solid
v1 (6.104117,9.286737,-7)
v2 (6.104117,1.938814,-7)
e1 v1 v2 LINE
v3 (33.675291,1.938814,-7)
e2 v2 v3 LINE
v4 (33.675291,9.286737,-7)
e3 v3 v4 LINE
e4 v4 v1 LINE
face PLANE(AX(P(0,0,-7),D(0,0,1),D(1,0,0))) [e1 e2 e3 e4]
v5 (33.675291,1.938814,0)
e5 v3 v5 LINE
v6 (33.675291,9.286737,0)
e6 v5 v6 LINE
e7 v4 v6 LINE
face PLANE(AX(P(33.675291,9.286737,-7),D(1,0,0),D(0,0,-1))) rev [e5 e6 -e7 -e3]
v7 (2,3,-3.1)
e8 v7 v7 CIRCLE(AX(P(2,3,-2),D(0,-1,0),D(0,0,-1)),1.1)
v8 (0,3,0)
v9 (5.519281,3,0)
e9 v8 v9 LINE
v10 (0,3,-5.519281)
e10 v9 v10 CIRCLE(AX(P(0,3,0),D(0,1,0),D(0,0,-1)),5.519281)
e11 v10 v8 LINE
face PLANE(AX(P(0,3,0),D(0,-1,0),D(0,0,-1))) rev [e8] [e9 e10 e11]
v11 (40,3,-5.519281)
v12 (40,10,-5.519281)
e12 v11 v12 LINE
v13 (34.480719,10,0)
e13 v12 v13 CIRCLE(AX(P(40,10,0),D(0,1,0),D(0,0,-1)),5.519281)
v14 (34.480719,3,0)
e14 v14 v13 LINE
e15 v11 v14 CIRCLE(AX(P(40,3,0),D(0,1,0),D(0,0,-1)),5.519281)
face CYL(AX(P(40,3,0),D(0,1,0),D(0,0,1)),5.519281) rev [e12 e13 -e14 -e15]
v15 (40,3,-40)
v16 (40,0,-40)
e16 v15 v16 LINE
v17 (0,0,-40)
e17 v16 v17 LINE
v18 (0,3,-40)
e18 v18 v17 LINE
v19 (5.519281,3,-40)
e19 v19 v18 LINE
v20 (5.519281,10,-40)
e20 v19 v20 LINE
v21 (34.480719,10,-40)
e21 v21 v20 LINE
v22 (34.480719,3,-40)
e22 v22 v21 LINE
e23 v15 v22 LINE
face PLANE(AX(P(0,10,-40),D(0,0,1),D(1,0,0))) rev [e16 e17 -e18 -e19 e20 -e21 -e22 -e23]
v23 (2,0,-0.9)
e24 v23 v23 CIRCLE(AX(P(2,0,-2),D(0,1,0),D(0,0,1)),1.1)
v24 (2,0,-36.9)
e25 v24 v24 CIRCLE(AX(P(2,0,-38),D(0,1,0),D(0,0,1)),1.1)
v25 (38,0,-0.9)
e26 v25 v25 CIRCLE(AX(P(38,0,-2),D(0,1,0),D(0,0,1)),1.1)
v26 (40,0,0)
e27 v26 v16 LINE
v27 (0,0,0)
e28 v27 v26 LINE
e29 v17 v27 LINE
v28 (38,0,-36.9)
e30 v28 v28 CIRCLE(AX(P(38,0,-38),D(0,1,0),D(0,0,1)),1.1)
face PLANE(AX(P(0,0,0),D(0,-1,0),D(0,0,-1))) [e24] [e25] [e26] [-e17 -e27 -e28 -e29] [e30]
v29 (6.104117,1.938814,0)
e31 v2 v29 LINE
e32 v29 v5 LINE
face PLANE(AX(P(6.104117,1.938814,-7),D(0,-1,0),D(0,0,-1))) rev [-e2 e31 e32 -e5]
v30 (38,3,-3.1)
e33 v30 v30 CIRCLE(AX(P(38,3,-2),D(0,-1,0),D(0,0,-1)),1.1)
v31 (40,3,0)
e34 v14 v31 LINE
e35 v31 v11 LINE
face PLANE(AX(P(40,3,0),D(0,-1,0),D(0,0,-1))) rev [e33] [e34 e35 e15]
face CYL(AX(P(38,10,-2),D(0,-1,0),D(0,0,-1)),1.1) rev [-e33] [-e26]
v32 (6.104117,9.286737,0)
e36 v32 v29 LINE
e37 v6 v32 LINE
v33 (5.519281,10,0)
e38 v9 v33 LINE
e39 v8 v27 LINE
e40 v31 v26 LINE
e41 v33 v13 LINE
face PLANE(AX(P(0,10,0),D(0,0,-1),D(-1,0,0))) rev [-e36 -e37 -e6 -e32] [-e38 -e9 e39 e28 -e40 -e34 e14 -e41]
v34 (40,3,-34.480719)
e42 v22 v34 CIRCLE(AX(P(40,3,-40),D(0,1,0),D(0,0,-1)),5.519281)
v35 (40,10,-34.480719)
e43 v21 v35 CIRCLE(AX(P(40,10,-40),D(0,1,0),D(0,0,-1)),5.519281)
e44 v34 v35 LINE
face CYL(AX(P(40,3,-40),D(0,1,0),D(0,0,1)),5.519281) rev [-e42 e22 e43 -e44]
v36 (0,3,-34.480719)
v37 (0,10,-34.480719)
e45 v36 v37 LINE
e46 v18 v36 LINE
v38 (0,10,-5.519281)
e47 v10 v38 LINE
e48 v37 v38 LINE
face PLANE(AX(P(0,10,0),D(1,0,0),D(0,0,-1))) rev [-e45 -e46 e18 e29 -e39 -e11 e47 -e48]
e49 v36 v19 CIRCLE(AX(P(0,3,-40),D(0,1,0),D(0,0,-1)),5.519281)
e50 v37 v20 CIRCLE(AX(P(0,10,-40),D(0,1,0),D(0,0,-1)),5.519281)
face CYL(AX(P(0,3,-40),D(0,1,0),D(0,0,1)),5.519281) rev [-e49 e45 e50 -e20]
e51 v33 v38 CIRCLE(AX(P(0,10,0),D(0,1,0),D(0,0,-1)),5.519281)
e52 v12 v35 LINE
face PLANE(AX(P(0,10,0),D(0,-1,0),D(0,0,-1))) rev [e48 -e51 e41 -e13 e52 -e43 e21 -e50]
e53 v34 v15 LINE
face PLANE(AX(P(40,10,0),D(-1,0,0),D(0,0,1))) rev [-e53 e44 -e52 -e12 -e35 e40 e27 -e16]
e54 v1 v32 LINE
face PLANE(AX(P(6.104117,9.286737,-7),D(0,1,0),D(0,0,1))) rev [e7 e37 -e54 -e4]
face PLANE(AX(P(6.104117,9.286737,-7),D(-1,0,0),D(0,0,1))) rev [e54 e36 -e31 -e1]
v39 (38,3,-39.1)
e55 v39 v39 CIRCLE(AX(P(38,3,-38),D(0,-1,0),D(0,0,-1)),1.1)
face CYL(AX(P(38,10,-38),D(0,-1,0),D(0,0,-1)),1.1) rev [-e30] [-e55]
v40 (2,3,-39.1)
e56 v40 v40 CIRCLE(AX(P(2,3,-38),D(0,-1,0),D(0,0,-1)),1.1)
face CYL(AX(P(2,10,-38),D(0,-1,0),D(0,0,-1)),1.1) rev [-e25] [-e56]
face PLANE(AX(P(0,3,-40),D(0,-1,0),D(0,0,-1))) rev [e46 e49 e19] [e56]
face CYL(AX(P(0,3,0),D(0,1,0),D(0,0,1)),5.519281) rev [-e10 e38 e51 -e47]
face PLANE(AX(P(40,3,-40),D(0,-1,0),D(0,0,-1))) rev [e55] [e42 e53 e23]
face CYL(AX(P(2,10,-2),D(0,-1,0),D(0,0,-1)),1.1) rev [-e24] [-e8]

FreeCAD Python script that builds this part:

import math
import FreeCAD as App
import Part
import Sketcher
from FreeCAD import Vector

doc = App.newDocument("Part")
body = doc.addObject("PartDesign::Body", "Body")

sketch1 = body.newObject("Sketcher::SketchObject", "Sketch")
sketch1.AttachmentSupport = (doc.getObject("XZ_Plane"), [""])
sketch1.MapMode = "FlatFace"
sketch1.addGeometry(Part.LineSegment(Vector(0, -40, 0), Vector(0, 0, 0)), False)
sketch1.addGeometry(Part.LineSegment(Vector(0, 0, 0), Vector(40, 0, 0)), False)
sketch1.addGeometry(Part.LineSegment(Vector(40, 0, 0), Vector(40, -40, 0)), False)
sketch1.addGeometry(Part.LineSegment(Vector(40, -40, 0), Vector(0, -40, 0)), False)
sketch1.addGeometry(Part.Circle(Vector(2, -2, 0), Vector(0, 0, 1), 1.1), False)
sketch1.addGeometry(Part.Circle(Vector(38, -2, 0), Vector(0, 0, 1), 1.1), False)
sketch1.addGeometry(Part.Circle(Vector(2, -38, 0), Vector(0, 0, 1), 1.1), False)
sketch1.addGeometry(Part.Circle(Vector(38, -38, 0), Vector(0, 0, 1), 1.1), False)
sketch1.addConstraint(Sketcher.Constraint("Coincident", 0, 2, 1, 1))
sketch1.addConstraint(Sketcher.Constraint("Coincident", 1, 2, 2, 1))
sketch1.addConstraint(Sketcher.Constraint("Coincident", 2, 2, 3, 1))
sketch1.addConstraint(Sketcher.Constraint("Coincident", 3, 2, 0, 1))
sketch1.addConstraint(Sketcher.Constraint("Vertical", 0))
sketch1.addConstraint(Sketcher.Constraint("Horizontal", 1))
sketch1.addConstraint(Sketcher.Constraint("Vertical", 2))
sketch1.addConstraint(Sketcher.Constraint("Horizontal", 3))
sketch1.addConstraint(Sketcher.Constraint("Coincident", 0, 2, -1, 1))
sketch1.addConstraint(Sketcher.Constraint("Equal", 4, 5))
sketch1.addConstraint(Sketcher.Constraint("Equal", 5, 6))
sketch1.addConstraint(Sketcher.Constraint("Equal", 6, 7))
sketch1.addConstraint(Sketcher.Constraint("Horizontal", 4, 3, 5, 3))
sketch1.addConstraint(Sketcher.Constraint("Horizontal", 6, 3, 7, 3))
sketch1.addConstraint(Sketcher.Constraint("Vertical", 4, 3, 6, 3))
sketch1.addConstraint(Sketcher.Constraint("Vertical", 5, 3, 7, 3))
sketch1.addConstraint(Sketcher.Constraint("Equal", 3, 0))
sketch1.addConstraint(Sketcher.Constraint("Diameter", 4, 2.2))
sketch1.addConstraint(Sketcher.Constraint("DistanceX", 1, 1, 1, 2, 40.0))
sketch1.addConstraint(Sketcher.Constraint("DistanceX", -1, 1, 4, 3, 2.0))
sketch1.addConstraint(Sketcher.Constraint("DistanceY", 4, 3, -1, 1, 2.0))
sketch1.addConstraint(Sketcher.Constraint("DistanceX", -1, 1, 5, 3, 38.0))
sketch1.addConstraint(Sketcher.Constraint("DistanceY", 6, 3, -1, 1, 38.0))
pad1 = body.newObject("PartDesign::Pad", "Pad")
pad1.Profile = sketch1
pad1.Length = 10
pad1.Reversed = True

sketch2 = body.newObject("Sketcher::SketchObject", "Sketch001")
sketch2.AttachmentSupport = (doc.getObject("XZ_Plane"), [""])
sketch2.MapMode = "FlatFace"
sketch2.AttachmentOffset = App.Placement(Vector(0, 0, -10), App.Rotation())
sketch2.addGeometry(Part.LineSegment(Vector(0, 0, 0), Vector(5.519281, 0, 0)), False)
sketch2.addGeometry(Part.ArcOfCircle(Part.Circle(Vector(0, 0, 0), Vector(0, 0, 1), 5.519281), math.radians(-90), math.radians(0)), False)
sketch2.addGeometry(Part.LineSegment(Vector(0, -5.519281, 0), Vector(0, 0, 0)), False)
sketch2.addGeometry(Part.LineSegment(Vector(40, 0, 0), Vector(40, -5.519281, 0)), False)
sketch2.addGeometry(Part.ArcOfCircle(Part.Circle(Vector(40, 0, 0), Vector(0, 0, 1), 5.519281), math.radians(-180), math.radians(-90)), False)
sketch2.addGeometry(Part.LineSegment(Vector(34.480719, 0, 0), Vector(40, 0, 0)), False)
sketch2.addGeometry(Part.LineSegment(Vector(40, -40, 0), Vector(34.480719, -40, 0)), False)
sketch2.addGeometry(Part.ArcOfCircle(Part.Circle(Vector(40, -40, 0), Vector(0, 0, 1), 5.519281), math.radians(90), math.radians(180)), False)
sketch2.addGeometry(Part.LineSegment(Vector(40, -34.480719, 0), Vector(40, -40, 0)), False)
sketch2.addGeometry(Part.LineSegment(Vector(0, -40, 0), Vector(0, -34.480719, 0)), False)
sketch2.addGeometry(Part.ArcOfCircle(Part.Circle(Vector(0, -40, 0), Vector(0, 0, 1), 5.519281), math.radians(0), math.radians(90)), False)
sketch2.addGeometry(Part.LineSegment(Vector(5.519281, -40, 0), Vector(0, -40, 0)), False)
sketch2.addConstraint(Sketcher.Constraint("Coincident", 0, 2, 1, 2))
sketch2.addConstraint(Sketcher.Constraint("Coincident", 1, 1, 2, 1))
sketch2.addConstraint(Sketcher.Constraint("Coincident", 2, 2, 0, 1))
sketch2.addConstraint(Sketcher.Constraint("Coincident", 3, 2, 4, 2))
sketch2.addConstraint(Sketcher.Constraint("Coincident", 4, 1, 5, 1))
sketch2.addConstraint(Sketcher.Constraint("Coincident", 5, 2, 3, 1))
sketch2.addConstraint(Sketcher.Constraint("Coincident", 6, 2, 7, 2))
sketch2.addConstraint(Sketcher.Constraint("Coincident", 7, 1, 8, 1))
sketch2.addConstraint(Sketcher.Constraint("Coincident", 8, 2, 6, 1))
sketch2.addConstraint(Sketcher.Constraint("Coincident", 9, 2, 10, 2))
sketch2.addConstraint(Sketcher.Constraint("Coincident", 10, 1, 11, 1))
sketch2.addConstraint(Sketcher.Constraint("Coincident", 11, 2, 9, 1))
sketch2.addConstraint(Sketcher.Constraint("Horizontal", 0))
sketch2.addConstraint(Sketcher.Constraint("Vertical", 2))
sketch2.addConstraint(Sketcher.Constraint("Vertical", 3))
sketch2.addConstraint(Sketcher.Constraint("Horizontal", 5))
sketch2.addConstraint(Sketcher.Constraint("Horizontal", 6))
sketch2.addConstraint(Sketcher.Constraint("Vertical", 8))
sketch2.addConstraint(Sketcher.Constraint("Vertical", 9))
sketch2.addConstraint(Sketcher.Constraint("Horizontal", 11))
sketch2.addConstraint(Sketcher.Constraint("Coincident", 1, 3, -1, 1))
sketch2.addConstraint(Sketcher.Constraint("Coincident", 2, 2, -1, 1))
sketch2.addConstraint(Sketcher.Constraint("Coincident", 5, 2, 4, 3))
sketch2.addConstraint(Sketcher.Constraint("Coincident", 8, 2, 7, 3))
sketch2.addConstraint(Sketcher.Constraint("Coincident", 11, 2, 10, 3))
sketch2.addConstraint(Sketcher.Constraint("Equal", 1, 4))
sketch2.addConstraint(Sketcher.Constraint("Equal", 4, 7))
sketch2.addConstraint(Sketcher.Constraint("Equal", 7, 10))
sketch2.addConstraint(Sketcher.Constraint("PointOnObject", 4, 3, -1))
sketch2.addConstraint(Sketcher.Constraint("PointOnObject", 10, 3, -2))
sketch2.addConstraint(Sketcher.Constraint("Horizontal", 7, 3, 10, 3))
sketch2.addConstraint(Sketcher.Constraint("Vertical", 4, 3, 7, 3))
sketch2.addConstraint(Sketcher.Constraint("DistanceX", -1, 1, 4, 3, 40.0))
sketch2.addConstraint(Sketcher.Constraint("DistanceY", 7, 3, -1, 1, 40.0))
sketch2.addConstraint(Sketcher.Constraint("Radius", 1, 5.519281))
pocket1 = body.newObject("PartDesign::Pocket", "Pocket")
pocket1.Profile = sketch2
pocket1.Length = 7
pocket1.Reversed = True

sketch3 = body.newObject("Sketcher::SketchObject", "Sketch002")
sketch3.AttachmentSupport = (doc.getObject("XY_Plane"), [""])
sketch3.MapMode = "FlatFace"
sketch3.addGeometry(Part.LineSegment(Vector(6.104117, 9.286737, 0), Vector(6.104117, 1.938814, 0)), False)
sketch3.addGeometry(Part.LineSegment(Vector(6.104117, 1.938814, 0), Vector(33.675291, 1.938814, 0)), False)
sketch3.addGeometry(Part.LineSegment(Vector(33.675291, 1.938814, 0), Vector(33.675291, 9.286737, 0)), False)
sketch3.addGeometry(Part.LineSegment(Vector(33.675291, 9.286737, 0), Vector(6.104117, 9.286737, 0)), False)
sketch3.addConstraint(Sketcher.Constraint("Coincident", 0, 2, 1, 1))
sketch3.addConstraint(Sketcher.Constraint("Coincident", 1, 2, 2, 1))
sketch3.addConstraint(Sketcher.Constraint("Coincident", 2, 2, 3, 1))
sketch3.addConstraint(Sketcher.Constraint("Coincident", 3, 2, 0, 1))
sketch3.addConstraint(Sketcher.Constraint("Vertical", 0))
sketch3.addConstraint(Sketcher.Constraint("Horizontal", 1))
sketch3.addConstraint(Sketcher.Constraint("Vertical", 2))
sketch3.addConstraint(Sketcher.Constraint("Horizontal", 3))
sketch3.addConstraint(Sketcher.Constraint("DistanceX", 1, 1, 1, 2, 27.571173))
sketch3.addConstraint(Sketcher.Constraint("DistanceY", 0, 2, 0, 1, 7.347923))
sketch3.addConstraint(Sketcher.Constraint("DistanceX", -1, 1, 1, 2, 33.675291))
sketch3.addConstraint(Sketcher.Constraint("DistanceY", -1, 1, 0, 2, 1.938814))
pocket2 = body.newObject("PartDesign::Pocket", "Pocket001")
pocket2.Profile = sketch3
pocket2.Length = 7

doc.recompute()
